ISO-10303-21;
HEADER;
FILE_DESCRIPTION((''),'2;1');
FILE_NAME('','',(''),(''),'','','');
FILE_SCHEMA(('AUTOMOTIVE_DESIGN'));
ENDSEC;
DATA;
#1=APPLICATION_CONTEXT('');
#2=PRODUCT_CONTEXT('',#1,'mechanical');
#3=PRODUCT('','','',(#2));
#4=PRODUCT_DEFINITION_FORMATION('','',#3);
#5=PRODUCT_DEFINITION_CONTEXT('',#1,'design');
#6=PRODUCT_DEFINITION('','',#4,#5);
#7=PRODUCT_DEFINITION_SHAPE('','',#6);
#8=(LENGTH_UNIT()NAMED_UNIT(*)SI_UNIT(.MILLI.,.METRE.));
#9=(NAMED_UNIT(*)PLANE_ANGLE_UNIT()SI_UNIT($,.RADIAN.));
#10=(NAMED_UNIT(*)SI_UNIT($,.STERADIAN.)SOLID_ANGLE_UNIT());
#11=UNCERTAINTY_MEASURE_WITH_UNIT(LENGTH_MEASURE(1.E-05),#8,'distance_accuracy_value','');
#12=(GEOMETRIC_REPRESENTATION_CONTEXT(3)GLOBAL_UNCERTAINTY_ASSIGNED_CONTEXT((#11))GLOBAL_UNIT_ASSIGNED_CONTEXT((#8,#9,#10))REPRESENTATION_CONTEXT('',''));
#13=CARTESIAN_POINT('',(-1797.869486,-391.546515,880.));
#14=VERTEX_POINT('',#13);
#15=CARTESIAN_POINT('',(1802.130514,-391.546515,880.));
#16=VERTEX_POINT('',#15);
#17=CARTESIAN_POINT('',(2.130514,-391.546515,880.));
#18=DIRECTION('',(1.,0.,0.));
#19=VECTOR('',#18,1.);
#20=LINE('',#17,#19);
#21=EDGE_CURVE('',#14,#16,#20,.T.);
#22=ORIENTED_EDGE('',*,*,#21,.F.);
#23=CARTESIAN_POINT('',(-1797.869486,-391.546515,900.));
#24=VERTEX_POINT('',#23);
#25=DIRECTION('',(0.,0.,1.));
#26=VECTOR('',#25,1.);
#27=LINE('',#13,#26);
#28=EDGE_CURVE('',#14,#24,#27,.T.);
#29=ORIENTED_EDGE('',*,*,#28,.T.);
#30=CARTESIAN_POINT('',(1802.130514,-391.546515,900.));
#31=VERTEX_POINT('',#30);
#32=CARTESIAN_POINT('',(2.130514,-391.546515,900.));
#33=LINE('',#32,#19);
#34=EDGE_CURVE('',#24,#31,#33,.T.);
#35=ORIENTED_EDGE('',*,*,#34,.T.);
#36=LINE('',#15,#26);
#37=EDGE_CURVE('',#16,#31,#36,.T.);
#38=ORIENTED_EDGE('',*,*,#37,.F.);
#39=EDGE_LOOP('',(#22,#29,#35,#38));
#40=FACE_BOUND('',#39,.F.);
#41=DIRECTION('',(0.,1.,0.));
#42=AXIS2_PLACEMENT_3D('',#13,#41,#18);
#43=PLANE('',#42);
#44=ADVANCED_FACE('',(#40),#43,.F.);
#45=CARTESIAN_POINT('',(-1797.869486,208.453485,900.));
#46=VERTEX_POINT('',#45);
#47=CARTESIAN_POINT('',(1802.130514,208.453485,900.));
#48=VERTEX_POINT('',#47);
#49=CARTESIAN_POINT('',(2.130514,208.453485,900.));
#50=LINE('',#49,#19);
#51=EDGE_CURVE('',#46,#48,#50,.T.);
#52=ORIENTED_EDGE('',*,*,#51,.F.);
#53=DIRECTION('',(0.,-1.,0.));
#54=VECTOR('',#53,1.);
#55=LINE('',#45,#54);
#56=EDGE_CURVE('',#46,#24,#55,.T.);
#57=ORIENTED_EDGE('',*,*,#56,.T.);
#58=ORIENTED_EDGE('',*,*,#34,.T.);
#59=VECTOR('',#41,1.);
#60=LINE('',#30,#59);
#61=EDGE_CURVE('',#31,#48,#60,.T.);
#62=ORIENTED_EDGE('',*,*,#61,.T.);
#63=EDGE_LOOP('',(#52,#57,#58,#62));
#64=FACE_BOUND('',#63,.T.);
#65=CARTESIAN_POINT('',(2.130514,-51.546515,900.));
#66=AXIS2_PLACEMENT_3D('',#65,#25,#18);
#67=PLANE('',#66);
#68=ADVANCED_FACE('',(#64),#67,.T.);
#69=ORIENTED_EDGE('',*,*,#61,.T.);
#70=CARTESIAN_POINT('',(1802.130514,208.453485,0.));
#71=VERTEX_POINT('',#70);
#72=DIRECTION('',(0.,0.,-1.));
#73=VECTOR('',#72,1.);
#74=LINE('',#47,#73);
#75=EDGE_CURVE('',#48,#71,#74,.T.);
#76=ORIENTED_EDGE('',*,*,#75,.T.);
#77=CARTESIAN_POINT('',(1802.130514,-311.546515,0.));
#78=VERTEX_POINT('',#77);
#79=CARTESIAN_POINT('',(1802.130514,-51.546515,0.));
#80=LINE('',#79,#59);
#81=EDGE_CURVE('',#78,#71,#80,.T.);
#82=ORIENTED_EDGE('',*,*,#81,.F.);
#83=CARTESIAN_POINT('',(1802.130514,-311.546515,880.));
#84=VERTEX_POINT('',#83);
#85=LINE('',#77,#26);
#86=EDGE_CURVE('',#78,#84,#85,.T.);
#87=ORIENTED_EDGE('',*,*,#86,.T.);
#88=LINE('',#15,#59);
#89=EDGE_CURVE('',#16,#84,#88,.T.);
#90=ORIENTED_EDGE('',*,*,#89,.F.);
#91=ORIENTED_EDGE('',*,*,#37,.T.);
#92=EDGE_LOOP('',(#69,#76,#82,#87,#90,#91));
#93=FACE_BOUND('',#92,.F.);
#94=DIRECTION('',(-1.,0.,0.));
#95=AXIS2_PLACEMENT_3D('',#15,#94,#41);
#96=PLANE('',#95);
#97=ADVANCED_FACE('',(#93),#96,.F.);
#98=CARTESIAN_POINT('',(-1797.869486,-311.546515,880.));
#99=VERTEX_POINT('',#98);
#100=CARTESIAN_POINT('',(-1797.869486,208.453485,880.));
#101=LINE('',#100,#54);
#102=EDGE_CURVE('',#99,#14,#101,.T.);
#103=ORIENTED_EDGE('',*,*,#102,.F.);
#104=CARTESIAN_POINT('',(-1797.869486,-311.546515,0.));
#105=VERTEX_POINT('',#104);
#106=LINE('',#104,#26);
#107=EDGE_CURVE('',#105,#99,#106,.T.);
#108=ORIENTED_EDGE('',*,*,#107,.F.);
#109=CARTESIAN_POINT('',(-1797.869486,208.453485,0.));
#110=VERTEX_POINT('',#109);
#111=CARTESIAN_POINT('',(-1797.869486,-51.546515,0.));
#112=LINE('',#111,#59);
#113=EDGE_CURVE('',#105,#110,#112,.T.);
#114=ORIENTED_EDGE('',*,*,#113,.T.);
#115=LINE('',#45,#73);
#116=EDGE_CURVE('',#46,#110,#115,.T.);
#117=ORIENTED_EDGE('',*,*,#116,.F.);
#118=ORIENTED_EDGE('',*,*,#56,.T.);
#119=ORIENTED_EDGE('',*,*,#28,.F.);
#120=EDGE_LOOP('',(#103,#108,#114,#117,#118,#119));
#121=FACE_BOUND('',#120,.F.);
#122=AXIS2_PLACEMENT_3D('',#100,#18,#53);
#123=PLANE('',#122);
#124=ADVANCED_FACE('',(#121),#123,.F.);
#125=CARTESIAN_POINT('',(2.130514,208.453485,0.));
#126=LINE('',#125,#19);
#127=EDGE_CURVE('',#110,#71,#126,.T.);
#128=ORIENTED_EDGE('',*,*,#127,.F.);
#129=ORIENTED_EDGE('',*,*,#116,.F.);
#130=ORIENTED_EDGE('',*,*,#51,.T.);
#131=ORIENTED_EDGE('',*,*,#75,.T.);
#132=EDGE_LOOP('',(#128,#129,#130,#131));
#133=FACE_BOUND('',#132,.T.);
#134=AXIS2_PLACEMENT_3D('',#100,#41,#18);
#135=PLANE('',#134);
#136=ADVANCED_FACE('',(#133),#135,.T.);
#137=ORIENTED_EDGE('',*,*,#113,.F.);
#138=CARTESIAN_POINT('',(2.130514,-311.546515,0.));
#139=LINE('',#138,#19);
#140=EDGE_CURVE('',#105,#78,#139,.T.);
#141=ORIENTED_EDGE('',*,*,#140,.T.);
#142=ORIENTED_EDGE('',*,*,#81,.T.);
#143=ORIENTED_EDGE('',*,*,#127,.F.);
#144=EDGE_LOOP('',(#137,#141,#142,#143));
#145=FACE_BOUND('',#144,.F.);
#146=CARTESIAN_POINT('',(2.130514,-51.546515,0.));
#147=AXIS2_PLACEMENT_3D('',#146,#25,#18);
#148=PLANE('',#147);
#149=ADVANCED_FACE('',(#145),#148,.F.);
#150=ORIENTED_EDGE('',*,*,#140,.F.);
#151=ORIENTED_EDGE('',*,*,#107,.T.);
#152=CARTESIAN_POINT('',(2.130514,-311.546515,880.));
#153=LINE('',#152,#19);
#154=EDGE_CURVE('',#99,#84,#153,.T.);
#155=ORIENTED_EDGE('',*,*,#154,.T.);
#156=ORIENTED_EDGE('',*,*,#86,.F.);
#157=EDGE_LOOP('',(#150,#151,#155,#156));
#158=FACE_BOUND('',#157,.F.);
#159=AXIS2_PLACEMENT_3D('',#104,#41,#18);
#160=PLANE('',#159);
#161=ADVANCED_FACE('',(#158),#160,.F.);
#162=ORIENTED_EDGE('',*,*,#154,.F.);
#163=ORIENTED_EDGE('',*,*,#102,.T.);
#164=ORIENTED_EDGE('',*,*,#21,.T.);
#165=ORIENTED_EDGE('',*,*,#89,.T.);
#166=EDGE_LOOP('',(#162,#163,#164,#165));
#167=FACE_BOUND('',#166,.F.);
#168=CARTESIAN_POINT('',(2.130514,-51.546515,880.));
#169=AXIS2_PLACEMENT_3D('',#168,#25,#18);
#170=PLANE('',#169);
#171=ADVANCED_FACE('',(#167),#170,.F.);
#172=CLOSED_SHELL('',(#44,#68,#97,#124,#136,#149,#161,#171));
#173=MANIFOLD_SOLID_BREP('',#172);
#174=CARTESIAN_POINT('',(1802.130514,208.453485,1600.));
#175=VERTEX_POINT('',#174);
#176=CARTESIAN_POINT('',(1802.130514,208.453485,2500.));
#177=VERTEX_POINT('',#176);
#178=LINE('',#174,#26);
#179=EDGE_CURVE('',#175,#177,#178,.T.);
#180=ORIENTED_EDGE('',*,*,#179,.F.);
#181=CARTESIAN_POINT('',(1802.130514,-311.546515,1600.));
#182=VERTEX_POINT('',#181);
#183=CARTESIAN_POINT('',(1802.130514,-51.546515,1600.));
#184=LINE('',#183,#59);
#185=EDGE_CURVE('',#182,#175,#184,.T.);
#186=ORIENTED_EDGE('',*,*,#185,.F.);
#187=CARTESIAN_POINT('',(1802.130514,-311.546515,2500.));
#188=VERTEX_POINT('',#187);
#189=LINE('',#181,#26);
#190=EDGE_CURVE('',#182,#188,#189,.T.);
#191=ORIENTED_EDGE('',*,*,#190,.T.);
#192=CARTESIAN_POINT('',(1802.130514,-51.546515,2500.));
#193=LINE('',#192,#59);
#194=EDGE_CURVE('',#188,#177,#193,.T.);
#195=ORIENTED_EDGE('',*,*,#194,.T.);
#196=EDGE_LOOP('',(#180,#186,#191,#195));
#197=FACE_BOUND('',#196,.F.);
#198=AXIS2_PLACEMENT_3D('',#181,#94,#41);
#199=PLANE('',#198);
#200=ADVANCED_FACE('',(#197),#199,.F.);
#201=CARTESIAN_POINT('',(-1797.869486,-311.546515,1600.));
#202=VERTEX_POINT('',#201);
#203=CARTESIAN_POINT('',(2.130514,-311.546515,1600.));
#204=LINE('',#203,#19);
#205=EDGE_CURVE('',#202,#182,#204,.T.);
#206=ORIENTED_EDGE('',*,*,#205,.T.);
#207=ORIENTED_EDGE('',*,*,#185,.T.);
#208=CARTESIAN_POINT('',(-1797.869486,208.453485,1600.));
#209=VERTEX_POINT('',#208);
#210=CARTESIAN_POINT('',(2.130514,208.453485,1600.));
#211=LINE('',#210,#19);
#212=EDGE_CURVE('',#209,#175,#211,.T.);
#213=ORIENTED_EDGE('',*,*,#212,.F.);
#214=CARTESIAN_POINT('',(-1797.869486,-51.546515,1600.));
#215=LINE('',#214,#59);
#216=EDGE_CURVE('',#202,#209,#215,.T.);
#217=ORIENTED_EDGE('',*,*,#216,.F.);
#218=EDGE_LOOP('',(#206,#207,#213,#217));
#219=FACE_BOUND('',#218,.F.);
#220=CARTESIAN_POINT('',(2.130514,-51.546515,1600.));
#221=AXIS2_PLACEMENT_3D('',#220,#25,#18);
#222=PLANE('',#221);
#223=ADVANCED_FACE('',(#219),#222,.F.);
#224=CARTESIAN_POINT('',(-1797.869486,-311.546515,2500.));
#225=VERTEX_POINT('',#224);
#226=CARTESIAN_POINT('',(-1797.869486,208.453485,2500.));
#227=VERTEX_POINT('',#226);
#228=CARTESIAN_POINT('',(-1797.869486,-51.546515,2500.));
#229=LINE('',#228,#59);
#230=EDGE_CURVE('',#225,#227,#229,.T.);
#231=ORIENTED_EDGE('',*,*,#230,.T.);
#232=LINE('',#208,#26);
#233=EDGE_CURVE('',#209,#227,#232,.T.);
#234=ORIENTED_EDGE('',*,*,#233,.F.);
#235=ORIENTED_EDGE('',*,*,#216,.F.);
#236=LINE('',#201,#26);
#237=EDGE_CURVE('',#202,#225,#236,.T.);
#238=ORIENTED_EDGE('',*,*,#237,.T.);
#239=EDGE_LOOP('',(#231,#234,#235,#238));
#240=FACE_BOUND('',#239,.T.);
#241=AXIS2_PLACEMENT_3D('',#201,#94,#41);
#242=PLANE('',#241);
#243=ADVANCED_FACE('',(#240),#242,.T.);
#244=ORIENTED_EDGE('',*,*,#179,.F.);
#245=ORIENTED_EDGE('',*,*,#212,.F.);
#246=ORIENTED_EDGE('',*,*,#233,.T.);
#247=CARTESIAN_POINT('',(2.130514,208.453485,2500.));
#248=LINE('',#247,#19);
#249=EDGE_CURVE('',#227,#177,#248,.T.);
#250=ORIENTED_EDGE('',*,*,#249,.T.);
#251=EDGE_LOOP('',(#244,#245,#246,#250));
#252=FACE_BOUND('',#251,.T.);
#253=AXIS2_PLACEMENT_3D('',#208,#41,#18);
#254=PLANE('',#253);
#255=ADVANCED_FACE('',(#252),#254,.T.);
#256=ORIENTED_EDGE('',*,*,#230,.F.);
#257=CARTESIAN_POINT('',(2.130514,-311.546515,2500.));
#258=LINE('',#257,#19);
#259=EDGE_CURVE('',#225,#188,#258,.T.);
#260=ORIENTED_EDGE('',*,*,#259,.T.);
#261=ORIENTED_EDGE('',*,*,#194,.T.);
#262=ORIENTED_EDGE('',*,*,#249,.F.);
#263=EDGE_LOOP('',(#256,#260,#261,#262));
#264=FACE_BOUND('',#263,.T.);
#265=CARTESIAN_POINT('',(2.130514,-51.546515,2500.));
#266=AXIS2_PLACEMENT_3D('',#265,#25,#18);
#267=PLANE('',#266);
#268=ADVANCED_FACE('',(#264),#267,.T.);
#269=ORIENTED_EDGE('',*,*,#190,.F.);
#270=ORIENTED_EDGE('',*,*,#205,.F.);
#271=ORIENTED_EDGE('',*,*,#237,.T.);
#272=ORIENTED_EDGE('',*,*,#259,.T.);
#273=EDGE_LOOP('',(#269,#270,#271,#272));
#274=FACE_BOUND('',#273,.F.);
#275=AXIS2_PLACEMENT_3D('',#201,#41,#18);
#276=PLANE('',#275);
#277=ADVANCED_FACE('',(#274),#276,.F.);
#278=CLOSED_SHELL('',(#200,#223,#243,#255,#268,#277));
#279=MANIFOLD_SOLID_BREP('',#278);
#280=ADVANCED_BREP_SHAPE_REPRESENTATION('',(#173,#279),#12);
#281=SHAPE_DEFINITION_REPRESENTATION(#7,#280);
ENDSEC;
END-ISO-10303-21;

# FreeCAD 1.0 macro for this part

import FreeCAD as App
import Part
import Sketcher

V = App.Vector


def add_polygon(sketch, points):
    """Adds a closed chain of lines whose ends are joined by coincident constraints."""
    first, n = sketch.GeometryCount, len(points)
    for a, b in zip(points, points[1:] + points[:1]):
        sketch.addGeometry(Part.LineSegment(App.Vector(*a, 0), App.Vector(*b, 0)), False)
    for i in range(n):
        sketch.addConstraint(Sketcher.Constraint("Coincident", first + i, 2, first + (i + 1) % n, 1))

doc = App.newDocument("Part")
body = doc.addObject("PartDesign::Body", "Body")

# Sketch on XY plane
sketch1 = body.newObject("Sketcher::SketchObject", "Sketch")
sketch1.AttachmentSupport = (doc.getObject("XY_Plane"), [""])
sketch1.MapMode = "FlatFace"
add_polygon(sketch1, [(-1798, 208), (-1798, -312), (1802, -312), (1802, 208)])  # lines 0-3
sketch1.addConstraint(Sketcher.Constraint("Vertical", 0))
sketch1.addConstraint(Sketcher.Constraint("Horizontal", 1))
sketch1.addConstraint(Sketcher.Constraint("Vertical", 2))
sketch1.addConstraint(Sketcher.Constraint("Horizontal", 3))
sketch1.addConstraint(Sketcher.Constraint("DistanceX", 1, 1, 1, 2, 3600.0))
sketch1.addConstraint(Sketcher.Constraint("DistanceY", 0, 2, 0, 1, 520.0))
sketch1.addConstraint(Sketcher.Constraint("DistanceX", 0, 2, -1, 1, 1797.869486))
sketch1.addConstraint(Sketcher.Constraint("DistanceY", 0, 2, -1, 1, 311.546515))
pad1 = body.newObject("PartDesign::Pad", "Pad")
pad1.Profile = sketch1
pad1.Length = 880

# Sketch on XY plane
sketch2 = body.newObject("Sketcher::SketchObject", "Sketch001")
sketch2.AttachmentSupport = (doc.getObject("XY_Plane"), [""])
sketch2.MapMode = "FlatFace"
sketch2.AttachmentOffset = App.Placement(V(0, 0, 880), App.Rotation())
add_polygon(sketch2, [(-1798, 208), (-1798, -392), (1802, -392), (1802, 208)])  # lines 0-3
sketch2.addConstraint(Sketcher.Constraint("Vertical", 0))
sketch2.addConstraint(Sketcher.Constraint("Horizontal", 1))
sketch2.addConstraint(Sketcher.Constraint("Vertical", 2))
sketch2.addConstraint(Sketcher.Constraint("Horizontal", 3))
sketch2.addConstraint(Sketcher.Constraint("DistanceX", 1, 1, 1, 2, 3600.0))
sketch2.addConstraint(Sketcher.Constraint("DistanceY", 0, 2, 0, 1, 600.0))
sketch2.addConstraint(Sketcher.Constraint("DistanceX", 0, 2, -1, 1, 1797.869486))
sketch2.addConstraint(Sketcher.Constraint("DistanceY", 0, 2, -1, 1, 391.546515))
pad2 = body.newObject("PartDesign::Pad", "Pad001")
pad2.Profile = sketch2
pad2.Length = 20
body2 = doc.addObject("PartDesign::Body", "Body001")

# Sketch on XY plane
sketch3 = body2.newObject("Sketcher::SketchObject", "Sketch002")
sketch3.AttachmentSupport = (doc.getObject("XY_Plane001"), [""])
sketch3.MapMode = "FlatFace"
sketch3.AttachmentOffset = App.Placement(V(0, 0, 1600), App.Rotation())
add_polygon(sketch3, [(-1798, 208), (-1798, -312), (1802, -312), (1802, 208)])  # lines 0-3
sketch3.addConstraint(Sketcher.Constraint("Vertical", 0))
sketch3.addConstraint(Sketcher.Constraint("Horizontal", 1))
sketch3.addConstraint(Sketcher.Constraint("Vertical", 2))
sketch3.addConstraint(Sketcher.Constraint("Horizontal", 3))
sketch3.addConstraint(Sketcher.Constraint("DistanceX", 1, 1, 1, 2, 3600.0))
sketch3.addConstraint(Sketcher.Constraint("DistanceY", 0, 2, 0, 1, 520.0))
sketch3.addConstraint(Sketcher.Constraint("DistanceX", 0, 2, -1, 1, 1797.869486))
sketch3.addConstraint(Sketcher.Constraint("DistanceY", 0, 2, -1, 1, 311.546515))
pad3 = body2.newObject("PartDesign::Pad", "Pad002")
pad3.Profile = sketch3
pad3.Length = 900

doc.recompute()
